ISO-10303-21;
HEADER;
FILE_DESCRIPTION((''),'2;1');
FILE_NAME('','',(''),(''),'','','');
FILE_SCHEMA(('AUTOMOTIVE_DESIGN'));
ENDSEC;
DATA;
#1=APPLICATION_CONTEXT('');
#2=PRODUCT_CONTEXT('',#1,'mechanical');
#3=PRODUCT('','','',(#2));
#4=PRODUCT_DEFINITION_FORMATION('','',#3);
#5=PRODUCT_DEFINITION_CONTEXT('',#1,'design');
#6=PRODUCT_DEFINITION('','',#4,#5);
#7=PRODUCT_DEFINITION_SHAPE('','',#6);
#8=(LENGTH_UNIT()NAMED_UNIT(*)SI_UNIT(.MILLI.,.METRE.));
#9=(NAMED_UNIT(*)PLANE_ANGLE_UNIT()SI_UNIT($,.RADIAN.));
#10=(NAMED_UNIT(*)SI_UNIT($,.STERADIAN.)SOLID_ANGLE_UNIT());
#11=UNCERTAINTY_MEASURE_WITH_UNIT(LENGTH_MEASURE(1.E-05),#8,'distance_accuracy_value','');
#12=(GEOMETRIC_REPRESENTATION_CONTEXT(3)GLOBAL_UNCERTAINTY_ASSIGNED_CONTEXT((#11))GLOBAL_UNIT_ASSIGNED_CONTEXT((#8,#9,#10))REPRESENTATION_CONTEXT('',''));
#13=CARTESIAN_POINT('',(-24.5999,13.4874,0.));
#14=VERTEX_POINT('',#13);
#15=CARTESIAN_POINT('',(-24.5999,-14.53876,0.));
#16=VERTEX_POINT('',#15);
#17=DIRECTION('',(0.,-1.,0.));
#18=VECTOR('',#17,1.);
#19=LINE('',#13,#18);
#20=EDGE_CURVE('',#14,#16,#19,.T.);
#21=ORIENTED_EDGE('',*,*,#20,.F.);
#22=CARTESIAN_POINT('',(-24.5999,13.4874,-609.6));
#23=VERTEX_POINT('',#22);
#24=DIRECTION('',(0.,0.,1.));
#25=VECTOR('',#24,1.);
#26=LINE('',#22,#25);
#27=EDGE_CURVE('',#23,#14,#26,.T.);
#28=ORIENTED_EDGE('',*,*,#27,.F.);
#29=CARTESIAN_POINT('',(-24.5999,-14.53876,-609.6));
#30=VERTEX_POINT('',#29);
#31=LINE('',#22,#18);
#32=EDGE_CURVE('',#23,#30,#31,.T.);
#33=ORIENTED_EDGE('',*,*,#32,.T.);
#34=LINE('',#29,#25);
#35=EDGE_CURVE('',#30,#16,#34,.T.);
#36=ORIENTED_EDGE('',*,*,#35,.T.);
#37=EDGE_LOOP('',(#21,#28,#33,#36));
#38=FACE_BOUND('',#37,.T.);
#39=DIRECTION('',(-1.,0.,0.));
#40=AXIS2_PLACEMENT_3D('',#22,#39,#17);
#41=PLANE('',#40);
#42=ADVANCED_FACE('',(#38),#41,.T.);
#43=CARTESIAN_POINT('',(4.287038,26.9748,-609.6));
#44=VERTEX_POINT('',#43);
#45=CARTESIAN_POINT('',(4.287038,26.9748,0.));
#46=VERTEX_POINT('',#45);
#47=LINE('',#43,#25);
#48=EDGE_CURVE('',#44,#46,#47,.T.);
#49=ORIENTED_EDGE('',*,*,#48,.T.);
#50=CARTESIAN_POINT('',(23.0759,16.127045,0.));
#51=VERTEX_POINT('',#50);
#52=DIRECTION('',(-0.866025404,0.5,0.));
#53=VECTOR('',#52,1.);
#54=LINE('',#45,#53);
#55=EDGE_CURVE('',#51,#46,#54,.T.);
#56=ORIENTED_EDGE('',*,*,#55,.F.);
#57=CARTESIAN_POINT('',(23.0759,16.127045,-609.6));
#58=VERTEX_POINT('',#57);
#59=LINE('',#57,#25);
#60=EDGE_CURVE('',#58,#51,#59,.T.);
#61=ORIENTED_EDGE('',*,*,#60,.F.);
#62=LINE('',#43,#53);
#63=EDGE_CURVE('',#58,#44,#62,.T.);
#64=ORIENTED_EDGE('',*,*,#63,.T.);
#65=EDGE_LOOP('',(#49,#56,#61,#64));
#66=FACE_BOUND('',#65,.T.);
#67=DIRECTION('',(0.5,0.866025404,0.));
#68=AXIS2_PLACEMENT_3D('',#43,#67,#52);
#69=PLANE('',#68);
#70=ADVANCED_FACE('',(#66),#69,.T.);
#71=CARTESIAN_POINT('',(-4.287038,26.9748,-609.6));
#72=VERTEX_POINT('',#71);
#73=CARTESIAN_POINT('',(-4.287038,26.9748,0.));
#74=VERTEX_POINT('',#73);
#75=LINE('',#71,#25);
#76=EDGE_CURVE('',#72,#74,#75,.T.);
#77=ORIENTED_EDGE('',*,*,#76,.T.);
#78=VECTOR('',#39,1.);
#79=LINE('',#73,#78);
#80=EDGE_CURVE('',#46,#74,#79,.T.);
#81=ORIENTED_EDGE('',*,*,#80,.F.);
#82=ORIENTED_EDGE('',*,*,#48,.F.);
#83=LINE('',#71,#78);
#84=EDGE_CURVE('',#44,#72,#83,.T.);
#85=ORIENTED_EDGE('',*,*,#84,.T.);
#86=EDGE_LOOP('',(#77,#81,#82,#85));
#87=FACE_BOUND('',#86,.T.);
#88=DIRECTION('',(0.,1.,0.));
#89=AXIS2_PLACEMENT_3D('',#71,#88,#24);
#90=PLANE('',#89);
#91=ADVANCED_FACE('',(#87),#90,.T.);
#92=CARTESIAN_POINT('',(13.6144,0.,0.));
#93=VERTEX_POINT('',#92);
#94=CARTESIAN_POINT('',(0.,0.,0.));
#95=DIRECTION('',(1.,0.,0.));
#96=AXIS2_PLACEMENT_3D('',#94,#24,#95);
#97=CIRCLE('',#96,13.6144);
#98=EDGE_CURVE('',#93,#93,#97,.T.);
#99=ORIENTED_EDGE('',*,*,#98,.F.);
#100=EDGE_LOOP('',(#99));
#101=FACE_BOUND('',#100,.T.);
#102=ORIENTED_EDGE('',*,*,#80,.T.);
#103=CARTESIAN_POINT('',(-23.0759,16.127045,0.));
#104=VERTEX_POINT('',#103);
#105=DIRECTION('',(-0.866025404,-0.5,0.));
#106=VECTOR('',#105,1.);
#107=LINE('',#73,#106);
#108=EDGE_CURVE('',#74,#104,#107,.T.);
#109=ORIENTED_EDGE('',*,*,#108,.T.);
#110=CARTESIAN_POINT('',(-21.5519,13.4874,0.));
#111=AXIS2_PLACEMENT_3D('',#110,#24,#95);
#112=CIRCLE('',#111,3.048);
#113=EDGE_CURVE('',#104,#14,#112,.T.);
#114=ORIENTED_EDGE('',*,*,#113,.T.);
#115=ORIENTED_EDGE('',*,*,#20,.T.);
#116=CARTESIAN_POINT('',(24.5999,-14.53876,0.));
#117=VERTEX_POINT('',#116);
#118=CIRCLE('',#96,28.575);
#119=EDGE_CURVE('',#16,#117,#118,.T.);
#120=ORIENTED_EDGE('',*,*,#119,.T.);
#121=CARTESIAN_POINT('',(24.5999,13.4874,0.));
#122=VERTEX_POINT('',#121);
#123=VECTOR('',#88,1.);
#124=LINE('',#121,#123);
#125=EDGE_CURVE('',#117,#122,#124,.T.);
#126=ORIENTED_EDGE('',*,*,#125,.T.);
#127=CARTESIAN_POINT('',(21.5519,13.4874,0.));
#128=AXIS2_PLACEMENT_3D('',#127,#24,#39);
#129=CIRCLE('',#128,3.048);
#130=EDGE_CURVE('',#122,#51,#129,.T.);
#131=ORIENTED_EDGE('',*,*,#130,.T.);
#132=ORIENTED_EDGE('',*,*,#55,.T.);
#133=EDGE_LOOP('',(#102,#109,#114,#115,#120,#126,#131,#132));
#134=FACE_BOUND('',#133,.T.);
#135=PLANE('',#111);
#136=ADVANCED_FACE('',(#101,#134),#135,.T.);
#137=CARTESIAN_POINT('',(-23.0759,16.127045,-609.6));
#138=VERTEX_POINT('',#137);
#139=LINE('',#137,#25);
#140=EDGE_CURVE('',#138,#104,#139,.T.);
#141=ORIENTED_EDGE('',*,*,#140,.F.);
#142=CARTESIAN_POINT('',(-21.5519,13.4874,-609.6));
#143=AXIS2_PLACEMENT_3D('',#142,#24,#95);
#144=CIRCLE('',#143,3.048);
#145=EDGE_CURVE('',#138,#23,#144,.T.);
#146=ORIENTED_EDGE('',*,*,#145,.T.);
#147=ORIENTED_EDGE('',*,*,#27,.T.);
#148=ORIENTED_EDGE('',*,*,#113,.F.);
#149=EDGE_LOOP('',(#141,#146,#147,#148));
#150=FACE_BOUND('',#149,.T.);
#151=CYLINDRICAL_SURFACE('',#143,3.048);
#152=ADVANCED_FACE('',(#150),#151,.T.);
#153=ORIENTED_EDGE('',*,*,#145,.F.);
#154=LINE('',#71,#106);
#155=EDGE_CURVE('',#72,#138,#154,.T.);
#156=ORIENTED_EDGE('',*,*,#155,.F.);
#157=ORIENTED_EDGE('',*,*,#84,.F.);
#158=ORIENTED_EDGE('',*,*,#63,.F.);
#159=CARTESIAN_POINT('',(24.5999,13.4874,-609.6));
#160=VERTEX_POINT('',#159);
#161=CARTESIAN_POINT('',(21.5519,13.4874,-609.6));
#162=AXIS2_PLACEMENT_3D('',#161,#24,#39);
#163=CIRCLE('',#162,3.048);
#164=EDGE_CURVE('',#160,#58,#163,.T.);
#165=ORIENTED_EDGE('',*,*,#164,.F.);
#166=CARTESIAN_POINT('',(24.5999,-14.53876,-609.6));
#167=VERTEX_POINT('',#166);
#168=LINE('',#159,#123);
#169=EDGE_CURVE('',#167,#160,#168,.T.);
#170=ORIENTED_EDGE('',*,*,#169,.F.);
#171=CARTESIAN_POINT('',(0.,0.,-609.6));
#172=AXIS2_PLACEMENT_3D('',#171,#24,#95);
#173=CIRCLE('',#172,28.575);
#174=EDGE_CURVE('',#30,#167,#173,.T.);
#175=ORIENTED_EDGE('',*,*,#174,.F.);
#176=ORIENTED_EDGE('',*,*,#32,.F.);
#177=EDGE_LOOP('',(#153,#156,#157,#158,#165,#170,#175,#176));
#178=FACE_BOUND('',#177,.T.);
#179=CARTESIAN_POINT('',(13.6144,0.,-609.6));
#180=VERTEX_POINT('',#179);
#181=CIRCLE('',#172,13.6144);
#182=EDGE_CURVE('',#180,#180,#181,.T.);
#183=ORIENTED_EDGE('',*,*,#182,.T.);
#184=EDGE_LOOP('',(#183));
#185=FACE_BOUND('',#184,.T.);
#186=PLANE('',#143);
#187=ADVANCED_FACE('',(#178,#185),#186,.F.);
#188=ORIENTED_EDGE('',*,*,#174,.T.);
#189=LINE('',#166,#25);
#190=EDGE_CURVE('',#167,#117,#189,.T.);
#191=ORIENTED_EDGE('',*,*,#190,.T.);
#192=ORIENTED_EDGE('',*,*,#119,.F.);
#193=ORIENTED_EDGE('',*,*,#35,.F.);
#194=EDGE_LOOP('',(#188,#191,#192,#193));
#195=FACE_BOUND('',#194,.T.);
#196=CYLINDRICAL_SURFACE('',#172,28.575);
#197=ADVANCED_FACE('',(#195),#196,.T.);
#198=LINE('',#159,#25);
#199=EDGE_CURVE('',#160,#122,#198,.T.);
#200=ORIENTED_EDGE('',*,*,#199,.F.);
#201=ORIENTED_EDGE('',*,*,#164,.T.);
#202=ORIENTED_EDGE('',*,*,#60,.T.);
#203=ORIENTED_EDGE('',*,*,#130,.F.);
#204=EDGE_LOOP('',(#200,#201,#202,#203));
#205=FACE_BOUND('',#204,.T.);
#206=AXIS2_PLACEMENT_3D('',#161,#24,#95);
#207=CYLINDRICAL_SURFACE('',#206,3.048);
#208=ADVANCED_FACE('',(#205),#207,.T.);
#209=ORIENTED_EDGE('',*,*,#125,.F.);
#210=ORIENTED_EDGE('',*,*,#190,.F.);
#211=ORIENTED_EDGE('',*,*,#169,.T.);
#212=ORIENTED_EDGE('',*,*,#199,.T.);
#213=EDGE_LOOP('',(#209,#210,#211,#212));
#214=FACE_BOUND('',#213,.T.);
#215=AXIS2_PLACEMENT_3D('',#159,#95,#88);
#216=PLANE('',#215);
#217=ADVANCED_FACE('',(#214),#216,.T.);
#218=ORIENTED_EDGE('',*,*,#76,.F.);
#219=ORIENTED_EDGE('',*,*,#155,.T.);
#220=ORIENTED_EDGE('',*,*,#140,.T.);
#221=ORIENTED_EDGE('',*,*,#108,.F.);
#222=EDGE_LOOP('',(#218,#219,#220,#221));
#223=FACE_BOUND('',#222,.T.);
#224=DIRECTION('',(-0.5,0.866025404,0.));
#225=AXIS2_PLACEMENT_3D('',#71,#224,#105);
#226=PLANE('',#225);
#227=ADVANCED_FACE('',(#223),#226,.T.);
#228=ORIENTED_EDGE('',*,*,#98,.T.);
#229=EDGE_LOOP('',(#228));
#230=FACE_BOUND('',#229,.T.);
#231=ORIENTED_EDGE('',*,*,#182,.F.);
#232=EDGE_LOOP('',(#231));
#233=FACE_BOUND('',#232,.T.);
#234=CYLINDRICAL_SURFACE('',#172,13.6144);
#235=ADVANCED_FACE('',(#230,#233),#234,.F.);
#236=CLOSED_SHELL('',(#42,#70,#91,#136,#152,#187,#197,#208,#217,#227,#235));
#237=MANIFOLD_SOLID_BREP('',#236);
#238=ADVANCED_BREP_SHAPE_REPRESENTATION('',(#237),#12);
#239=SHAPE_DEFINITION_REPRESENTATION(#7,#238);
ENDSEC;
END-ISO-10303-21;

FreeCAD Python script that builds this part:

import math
import FreeCAD as App
import Part
import Sketcher

V = App.Vector
Q = App.Units.Quantity

doc = App.newDocument("Part")
body = doc.addObject("PartDesign::Body", "Body")

sketch1 = body.newObject("Sketcher::SketchObject", "Sketch")
sketch1.AttachmentSupport = (doc.getObject("XY_Plane"), [""])
sketch1.MapMode = "FlatFace"
sketch1.addGeometry([
    Part.LineSegment(V(4.3, 27, 0), V(-4.3, 27, 0)),
    Part.LineSegment(V(-4.3, 27, 0), V(-23.1, 16.1, 0)),
    Part.ArcOfCircle(Part.Circle(V(-21.6, 13.5, 0), V(0, 0, 1), 3), math.radians(120), math.radians(180)),
    Part.LineSegment(V(-24.6, 13.5, 0), V(-24.6, -14.5, 0)),
    Part.ArcOfCircle(Part.Circle(V(0, 0, 0), V(0, 0, 1), 28.6), math.radians(-149), math.radians(-31)),
    Part.LineSegment(V(24.6, -14.5, 0), V(24.6, 13.5, 0)),
    Part.ArcOfCircle(Part.Circle(V(21.6, 13.5, 0), V(0, 0, 1), 3), math.radians(0), math.radians(60)),
    Part.LineSegment(V(23.1, 16.1, 0), V(4.3, 27, 0)),
    Part.Circle(V(0, 0, 0), V(0, 0, 1), 13.6),
], False)
sketch1.addConstraint([
    Sketcher.Constraint("Coincident", 0, 2, 1, 1),
    Sketcher.Constraint("Tangent", 1, 2, 2, 1),
    Sketcher.Constraint("Tangent", 2, 2, 3, 1),
    Sketcher.Constraint("Coincident", 3, 2, 4, 1),
    Sketcher.Constraint("Coincident", 4, 2, 5, 1),
    Sketcher.Constraint("Tangent", 5, 2, 6, 1),
    Sketcher.Constraint("Tangent", 6, 2, 7, 1),
    Sketcher.Constraint("Coincident", 7, 2, 0, 1),
    Sketcher.Constraint("Horizontal", 0),
    Sketcher.Constraint("Vertical", 3),
    Sketcher.Constraint("Vertical", 5),
    Sketcher.Constraint("Coincident", 4, 3, -1, 1),
    Sketcher.Constraint("Coincident", 8, 3, -1, 1),
    Sketcher.Constraint("Equal", 2, 6),
    Sketcher.Constraint("Symmetric", 2, 3, 6, 3, -2),
    Sketcher.Constraint("Horizontal", 1, 2, 6, 2),
    Sketcher.Constraint("Radius", 2, Q("0.12 in")),
    Sketcher.Constraint("Diameter", 8, Q("1.072 in")),
    Sketcher.Constraint("Angle", 1, Q("-150 deg")),
    Sketcher.Constraint("Radius", 4, Q("1.125 in")),
    Sketcher.Constraint("DistanceY", -1, 1, 2, 3, Q("0.531 in")),
    Sketcher.Constraint("DistanceY", -1, 1, 0, 2, Q("1.062 in")),
    Sketcher.Constraint("DistanceX", 2, 3, 6, 3, Q("1.697 in")),
])
pad1 = body.newObject("PartDesign::Pad", "Pad")
pad1.Profile = sketch1
pad1.Length = Q("24 in")
pad1.Reversed = True

doc.recompute()
